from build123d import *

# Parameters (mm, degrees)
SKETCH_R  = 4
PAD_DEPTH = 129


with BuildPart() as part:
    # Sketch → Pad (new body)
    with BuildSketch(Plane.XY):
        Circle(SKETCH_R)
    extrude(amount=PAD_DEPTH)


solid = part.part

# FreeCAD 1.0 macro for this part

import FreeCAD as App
import Part
import Sketcher

V = App.Vector
Q = App.Units.Quantity

doc = App.newDocument("Part")
body = doc.addObject("PartDesign::Body", "Body")

sketch1 = body.newObject("Sketcher::SketchObject", "Sketch")
sketch1.AttachmentSupport = (doc.getObject("XY_Plane"), [""])
sketch1.MapMode = "FlatFace"
sketch1.addGeometry(Part.Circle(V(0, 0, 0), V(0, 0, 1), 4), False)
sketch1.addConstraint([
    Sketcher.Constraint("Coincident", 0, 3, -1, 1),
    Sketcher.Constraint("Diameter", 0, Q("8 mm")),
])
pad1 = body.newObject("PartDesign::Pad", "Pad")
pad1.Profile = sketch1
pad1.Length = 129

doc.recompute()
